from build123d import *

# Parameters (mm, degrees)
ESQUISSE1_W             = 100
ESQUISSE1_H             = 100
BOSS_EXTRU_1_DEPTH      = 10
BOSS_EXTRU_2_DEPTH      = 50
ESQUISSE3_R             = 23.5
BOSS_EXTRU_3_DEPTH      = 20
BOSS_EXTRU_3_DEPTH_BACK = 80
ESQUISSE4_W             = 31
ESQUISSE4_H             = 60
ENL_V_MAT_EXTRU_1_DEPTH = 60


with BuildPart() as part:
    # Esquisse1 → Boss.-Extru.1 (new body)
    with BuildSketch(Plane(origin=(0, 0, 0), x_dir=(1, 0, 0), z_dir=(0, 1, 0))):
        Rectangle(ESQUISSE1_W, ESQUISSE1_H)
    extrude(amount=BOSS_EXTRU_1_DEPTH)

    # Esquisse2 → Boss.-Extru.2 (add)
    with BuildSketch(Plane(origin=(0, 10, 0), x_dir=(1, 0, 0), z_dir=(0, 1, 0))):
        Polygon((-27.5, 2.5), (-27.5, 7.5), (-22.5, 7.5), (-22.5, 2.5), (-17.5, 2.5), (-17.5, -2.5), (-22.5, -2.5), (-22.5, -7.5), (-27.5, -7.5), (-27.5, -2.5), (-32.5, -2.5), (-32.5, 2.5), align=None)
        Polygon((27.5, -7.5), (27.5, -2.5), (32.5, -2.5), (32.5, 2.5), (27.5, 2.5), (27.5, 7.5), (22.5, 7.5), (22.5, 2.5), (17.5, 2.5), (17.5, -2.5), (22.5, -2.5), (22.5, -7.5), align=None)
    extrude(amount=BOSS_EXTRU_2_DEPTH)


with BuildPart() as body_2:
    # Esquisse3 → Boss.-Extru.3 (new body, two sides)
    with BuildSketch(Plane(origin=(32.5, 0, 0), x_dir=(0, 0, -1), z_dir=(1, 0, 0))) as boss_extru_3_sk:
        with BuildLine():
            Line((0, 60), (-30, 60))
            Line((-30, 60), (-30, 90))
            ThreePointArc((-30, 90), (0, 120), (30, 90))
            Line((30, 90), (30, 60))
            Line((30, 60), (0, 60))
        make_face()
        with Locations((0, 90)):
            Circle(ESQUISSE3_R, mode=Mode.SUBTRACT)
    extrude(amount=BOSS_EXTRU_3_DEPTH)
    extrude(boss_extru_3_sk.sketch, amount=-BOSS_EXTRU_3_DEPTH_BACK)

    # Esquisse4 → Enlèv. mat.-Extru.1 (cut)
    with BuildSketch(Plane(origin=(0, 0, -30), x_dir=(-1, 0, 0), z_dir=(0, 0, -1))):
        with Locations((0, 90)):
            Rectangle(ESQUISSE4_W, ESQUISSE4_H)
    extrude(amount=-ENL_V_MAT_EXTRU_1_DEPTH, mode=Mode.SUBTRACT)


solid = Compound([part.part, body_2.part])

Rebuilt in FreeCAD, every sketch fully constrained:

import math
import FreeCAD as App
import Part
import Sketcher

V = App.Vector

doc = App.newDocument("Part")
params = doc.addObject("Spreadsheet::Sheet", "Params")
for row, (alias, value) in enumerate([
    ("sketch1_width", "100 mm"),
    ("pad1_length", "10 mm"),
    ("sketch2_width", "5 mm"),
    ("pad2_length", "50 mm"),
    ("sketch3_diameter", "47 mm"),
    ("sketch3_radius", "30 mm"),
    ("sketch3_width", "30 mm"),
    ("pad3_length", "20 mm"),
    ("pad3_length2", "80 mm"),
    ("sketch4_width", "31 mm"),
    ("sketch4_height", "60 mm"),
    ("pocket1_length", "60 mm"),
], start=1):
    params.set(f"A{row}", alias)
    params.set(f"B{row}", "=" + value)
    params.setAlias(f"B{row}", alias)

body = doc.addObject("PartDesign::Body", "Body")

# Sketch on XZ plane
sketch1 = doc.addObject("Sketcher::SketchObject", "Sketch")
body.addObject(sketch1)
sketch1.AttachmentSupport = (doc.XZ_Plane, [""])
sketch1.MapMode = "FlatFace"
sketch1.addGeometry(Part.LineSegment(V(-50, -50, 0), V(-50, 50, 0)), False)
sketch1.addGeometry(Part.LineSegment(V(-50, 50, 0), V(50, 50, 0)), False)
sketch1.addGeometry(Part.LineSegment(V(50, 50, 0), V(50, -50, 0)), False)
sketch1.addGeometry(Part.LineSegment(V(50, -50, 0), V(-50, -50, 0)), False)
sketch1.addConstraint(Sketcher.Constraint("Coincident", 0, 2, 1, 1))
sketch1.addConstraint(Sketcher.Constraint("Coincident", 1, 2, 2, 1))
sketch1.addConstraint(Sketcher.Constraint("Coincident", 2, 2, 3, 1))
sketch1.addConstraint(Sketcher.Constraint("Coincident", 3, 2, 0, 1))
sketch1.addConstraint(Sketcher.Constraint("Vertical", 0))
sketch1.addConstraint(Sketcher.Constraint("Horizontal", 1))
sketch1.addConstraint(Sketcher.Constraint("Vertical", 2))
sketch1.addConstraint(Sketcher.Constraint("Horizontal", 3))
sketch1.addConstraint(Sketcher.Constraint("Symmetric", 0, 2, 2, 2, -1, 1))
sketch1.addConstraint(Sketcher.Constraint("Equal", 3, 0))
sketch1.addConstraint(Sketcher.Constraint("DistanceX", 1, 1, 1, 2, 100.0))
sketch1.setExpression("Constraints[10]", "Params.sketch1_width")
pad1 = doc.addObject("PartDesign::Pad", "Pad")
body.addObject(pad1)
pad1.Profile = sketch1
pad1.setExpression("Length", "Params.pad1_length")
pad1.Reversed = True

# Sketch on XZ plane
sketch2 = doc.addObject("Sketcher::SketchObject", "Sketch001")
body.addObject(sketch2)
sketch2.AttachmentSupport = (doc.XZ_Plane, [""])
sketch2.MapMode = "FlatFace"
sketch2.AttachmentOffset = App.Placement(V(0, 0, -10), App.Rotation())
sketch2.addGeometry(Part.LineSegment(V(-27.5, -7.5, 0), V(-27.5, -2.5, 0)), False)
sketch2.addGeometry(Part.LineSegment(V(-27.5, -2.5, 0), V(-32.5, -2.5, 0)), False)
sketch2.addGeometry(Part.LineSegment(V(-32.5, -2.5, 0), V(-32.5, 2.5, 0)), False)
sketch2.addGeometry(Part.LineSegment(V(-32.5, 2.5, 0), V(-27.5, 2.5, 0)), False)
sketch2.addGeometry(Part.LineSegment(V(-27.5, 2.5, 0), V(-27.5, 7.5, 0)), False)
sketch2.addGeometry(Part.LineSegment(V(-27.5, 7.5, 0), V(-22.5, 7.5, 0)), False)
sketch2.addGeometry(Part.LineSegment(V(-22.5, 7.5, 0), V(-22.5, 2.5, 0)), False)
sketch2.addGeometry(Part.LineSegment(V(-22.5, 2.5, 0), V(-17.5, 2.5, 0)), False)
sketch2.addGeometry(Part.LineSegment(V(-17.5, 2.5, 0), V(-17.5, -2.5, 0)), False)
sketch2.addGeometry(Part.LineSegment(V(-17.5, -2.5, 0), V(-22.5, -2.5, 0)), False)
sketch2.addGeometry(Part.LineSegment(V(-22.5, -2.5, 0), V(-22.5, -7.5, 0)), False)
sketch2.addGeometry(Part.LineSegment(V(-22.5, -7.5, 0), V(-27.5, -7.5, 0)), False)
sketch2.addGeometry(Part.LineSegment(V(27.5, 7.5, 0), V(27.5, 2.5, 0)), False)
sketch2.addGeometry(Part.LineSegment(V(27.5, 2.5, 0), V(32.5, 2.5, 0)), False)
sketch2.addGeometry(Part.LineSegment(V(32.5, 2.5, 0), V(32.5, -2.5, 0)), False)
sketch2.addGeometry(Part.LineSegment(V(32.5, -2.5, 0), V(27.5, -2.5, 0)), False)
sketch2.addGeometry(Part.LineSegment(V(27.5, -2.5, 0), V(27.5, -7.5, 0)), False)
sketch2.addGeometry(Part.LineSegment(V(27.5, -7.5, 0), V(22.5, -7.5, 0)), False)
sketch2.addGeometry(Part.LineSegment(V(22.5, -7.5, 0), V(22.5, -2.5, 0)), False)
sketch2.addGeometry(Part.LineSegment(V(22.5, -2.5, 0), V(17.5, -2.5, 0)), False)
sketch2.addGeometry(Part.LineSegment(V(17.5, -2.5, 0), V(17.5, 2.5, 0)), False)
sketch2.addGeometry(Part.LineSegment(V(17.5, 2.5, 0), V(22.5, 2.5, 0)), False)
sketch2.addGeometry(Part.LineSegment(V(22.5, 2.5, 0), V(22.5, 7.5, 0)), False)
sketch2.addGeometry(Part.LineSegment(V(22.5, 7.5, 0), V(27.5, 7.5, 0)), False)
sketch2.addConstraint(Sketcher.Constraint("Coincident", 0, 2, 1, 1))
sketch2.addConstraint(Sketcher.Constraint("Coincident", 1, 2, 2, 1))
sketch2.addConstraint(Sketcher.Constraint("Coincident", 2, 2, 3, 1))
sketch2.addConstraint(Sketcher.Constraint("Coincident", 3, 2, 4, 1))
sketch2.addConstraint(Sketcher.Constraint("Coincident", 4, 2, 5, 1))
sketch2.addConstraint(Sketcher.Constraint("Coincident", 5, 2, 6, 1))
sketch2.addConstraint(Sketcher.Constraint("Coincident", 6, 2, 7, 1))
sketch2.addConstraint(Sketcher.Constraint("Coincident", 7, 2, 8, 1))
sketch2.addConstraint(Sketcher.Constraint("Coincident", 8, 2, 9, 1))
sketch2.addConstraint(Sketcher.Constraint("Coincident", 9, 2, 10, 1))
sketch2.addConstraint(Sketcher.Constraint("Coincident", 10, 2, 11, 1))
sketch2.addConstraint(Sketcher.Constraint("Coincident", 11, 2, 0, 1))
sketch2.addConstraint(Sketcher.Constraint("Coincident", 12, 2, 13, 1))
sketch2.addConstraint(Sketcher.Constraint("Coincident", 13, 2, 14, 1))
sketch2.addConstraint(Sketcher.Constraint("Coincident", 14, 2, 15, 1))
sketch2.addConstraint(Sketcher.Constraint("Coincident", 15, 2, 16, 1))
sketch2.addConstraint(Sketcher.Constraint("Coincident", 16, 2, 17, 1))
sketch2.addConstraint(Sketcher.Constraint("Coincident", 17, 2, 18, 1))
sketch2.addConstraint(Sketcher.Constraint("Coincident", 18, 2, 19, 1))
sketch2.addConstraint(Sketcher.Constraint("Coincident", 19, 2, 20, 1))
sketch2.addConstraint(Sketcher.Constraint("Coincident", 20, 2, 21, 1))
sketch2.addConstraint(Sketcher.Constraint("Coincident", 21, 2, 22, 1))
sketch2.addConstraint(Sketcher.Constraint("Coincident", 22, 2, 23, 1))
sketch2.addConstraint(Sketcher.Constraint("Coincident", 23, 2, 12, 1))
sketch2.addConstraint(Sketcher.Constraint("Vertical", 0))
sketch2.addConstraint(Sketcher.Constraint("Horizontal", 1))
sketch2.addConstraint(Sketcher.Constraint("Vertical", 2))
sketch2.addConstraint(Sketcher.Constraint("Horizontal", 3))
sketch2.addConstraint(Sketcher.Constraint("Vertical", 4))
sketch2.addConstraint(Sketcher.Constraint("Horizontal", 5))
sketch2.addConstraint(Sketcher.Constraint("Vertical", 6))
sketch2.addConstraint(Sketcher.Constraint("Horizontal", 7))
sketch2.addConstraint(Sketcher.Constraint("Vertical", 8))
sketch2.addConstraint(Sketcher.Constraint("Horizontal", 9))
sketch2.addConstraint(Sketcher.Constraint("Vertical", 10))
sketch2.addConstraint(Sketcher.Constraint("Horizontal", 11))
sketch2.addConstraint(Sketcher.Constraint("Vertical", 12))
sketch2.addConstraint(Sketcher.Constraint("Horizontal", 13))
sketch2.addConstraint(Sketcher.Constraint("Vertical", 14))
sketch2.addConstraint(Sketcher.Constraint("Horizontal", 15))
sketch2.addConstraint(Sketcher.Constraint("Vertical", 16))
sketch2.addConstraint(Sketcher.Constraint("Horizontal", 17))
sketch2.addConstraint(Sketcher.Constraint("Vertical", 18))
sketch2.addConstraint(Sketcher.Constraint("Horizontal", 19))
sketch2.addConstraint(Sketcher.Constraint("Vertical", 20))
sketch2.addConstraint(Sketcher.Constraint("Horizontal", 21))
sketch2.addConstraint(Sketcher.Constraint("Vertical", 22))
sketch2.addConstraint(Sketcher.Constraint("Horizontal", 23))
sketch2.addConstraint(Sketcher.Constraint("Symmetric", 0, 2, 12, 2, -1, 1))
sketch2.addConstraint(Sketcher.Constraint("Symmetric", 2, 2, 14, 2, -1, 1))
sketch2.addConstraint(Sketcher.Constraint("Symmetric", 4, 2, 16, 2, -1, 1))
sketch2.addConstraint(Sketcher.Constraint("Symmetric", 6, 2, 18, 2, -1, 1))
sketch2.addConstraint(Sketcher.Constraint("Symmetric", 8, 2, 20, 2, -1, 1))
sketch2.addConstraint(Sketcher.Constraint("Symmetric", 10, 2, 22, 2, -1, 1))
sketch2.addConstraint(Sketcher.Constraint("Symmetric", 3, 2, 12, 2, -2))
sketch2.addConstraint(Sketcher.Constraint("Symmetric", 10, 2, 17, 2, -2))
sketch2.addConstraint(Sketcher.Constraint("Horizontal", 3, 2, 6, 2))
sketch2.addConstraint(Sketcher.Constraint("Horizontal", 1, 2, 8, 2))
sketch2.addConstraint(Sketcher.Constraint("Equal", 3, 5))
sketch2.addConstraint(Sketcher.Constraint("Equal", 5, 7))
sketch2.addConstraint(Sketcher.Constraint("Equal", 23, 0))
sketch2.addConstraint(Sketcher.Constraint("Equal", 0, 2))
sketch2.addConstraint(Sketcher.Constraint("DistanceX", 1, 2, 1, 1, 5.0))
sketch2.addConstraint(Sketcher.Constraint("DistanceX", 7, 2, 12, 2, 45.0))
sketch2.setExpression("Constraints[62]", "Params.sketch2_width")
pad2 = doc.addObject("PartDesign::Pad", "Pad001")
body.addObject(pad2)
pad2.Profile = sketch2
pad2.setExpression("Length", "Params.pad2_length")
pad2.Reversed = True
body2 = doc.addObject("PartDesign::Body", "Body001")
body2.AllowCompound = True

# Sketch on YZ plane
sketch3 = doc.addObject("Sketcher::SketchObject", "Sketch002")
body2.addObject(sketch3)
sketch3.AttachmentSupport = (doc.getObject("YZ_Plane001"), [""])
sketch3.MapMode = "FlatFace"
sketch3.AttachmentOffset = App.Placement(V(0, 0, 32.5), App.Rotation())
sketch3.addGeometry(Part.LineSegment(V(90, 30, 0), V(60, 30, 0)), False)
sketch3.addGeometry(Part.LineSegment(V(60, 30, 0), V(60, -30, 0)), False)
sketch3.addGeometry(Part.LineSegment(V(60, -30, 0), V(90, -30, 0)), False)
sketch3.addGeometry(Part.ArcOfCircle(Part.Circle(V(90, 0, 0), V(0, 0, 1), 30), math.radians(-90), math.radians(90)), False)
sketch3.addGeometry(Part.Circle(V(90, 0, 0), V(0, 0, 1), 23.5), False)
sketch3.addConstraint(Sketcher.Constraint("Coincident", 0, 2, 1, 1))
sketch3.addConstraint(Sketcher.Constraint("Coincident", 1, 2, 2, 1))
sketch3.addConstraint(Sketcher.Constraint("Tangent", 2, 2, 3, 1))
sketch3.addConstraint(Sketcher.Constraint("Tangent", 3, 2, 0, 1))
sketch3.addConstraint(Sketcher.Constraint("Horizontal", 0))
sketch3.addConstraint(Sketcher.Constraint("Vertical", 1))
sketch3.addConstraint(Sketcher.Constraint("Horizontal", 2))
sketch3.addConstraint(Sketcher.Constraint("Coincident", 4, 3, 3, 3))
sketch3.addConstraint(Sketcher.Constraint("PointOnObject", 3, 3, -1))
sketch3.addConstraint(Sketcher.Constraint("Diameter", 4, 47.0))
sketch3.addConstraint(Sketcher.Constraint("Radius", 3, 30.0))
sketch3.addConstraint(Sketcher.Constraint("DistanceX", 0, 2, 0, 1, 30.0))
sketch3.addConstraint(Sketcher.Constraint("DistanceX", -1, 1, 3, 3, 90.0))
sketch3.setExpression("Constraints[9]", "Params.sketch3_diameter")
sketch3.setExpression("Constraints[10]", "Params.sketch3_radius")
sketch3.setExpression("Constraints[11]", "Params.sketch3_width")
pad3 = doc.addObject("PartDesign::Pad", "Pad002")
body2.addObject(pad3)
pad3.Profile = sketch3
pad3.Type = "TwoLengths"
pad3.setExpression("Length", "Params.pad3_length")
pad3.setExpression("Length2", "Params.pad3_length2")

# Sketch on XY plane
sketch4 = doc.addObject("Sketcher::SketchObject", "Sketch003")
body2.addObject(sketch4)
sketch4.AttachmentSupport = (doc.getObject("XY_Plane001"), [""])
sketch4.MapMode = "FlatFace"
sketch4.AttachmentOffset = App.Placement(V(0, 0, -30), App.Rotation())
sketch4.addGeometry(Part.LineSegment(V(15.5, 120, 0), V(15.5, 60, 0)), False)
sketch4.addGeometry(Part.LineSegment(V(15.5, 60, 0), V(-15.5, 60, 0)), False)
sketch4.addGeometry(Part.LineSegment(V(-15.5, 60, 0), V(-15.5, 120, 0)), False)
sketch4.addGeometry(Part.LineSegment(V(-15.5, 120, 0), V(15.5, 120, 0)), False)
sketch4.addConstraint(Sketcher.Constraint("Coincident", 0, 2, 1, 1))
sketch4.addConstraint(Sketcher.Constraint("Coincident", 1, 2, 2, 1))
sketch4.addConstraint(Sketcher.Constraint("Coincident", 2, 2, 3, 1))
sketch4.addConstraint(Sketcher.Constraint("Coincident", 3, 2, 0, 1))
sketch4.addConstraint(Sketcher.Constraint("Vertical", 0))
sketch4.addConstraint(Sketcher.Constraint("Horizontal", 1))
sketch4.addConstraint(Sketcher.Constraint("Vertical", 2))
sketch4.addConstraint(Sketcher.Constraint("Horizontal", 3))
sketch4.addConstraint(Sketcher.Constraint("DistanceX", 1, 2, 1, 1, 31.0))
sketch4.addConstraint(Sketcher.Constraint("DistanceY", 0, 2, 0, 1, 60.0))
sketch4.addConstraint(Sketcher.Constraint("DistanceY", -1, 1, 0, 2, 60.0))
sketch4.addConstraint(Sketcher.Constraint("DistanceX", -1, 1, 0, 2, 15.5))
sketch4.setExpression("Constraints[8]", "Params.sketch4_width")
sketch4.setExpression("Constraints[9]", "Params.sketch4_height")
pocket1 = doc.addObject("PartDesign::Pocket", "Pocket")
body2.addObject(pocket1)
pocket1.Profile = sketch4
pocket1.setExpression("Length", "Params.pocket1_length")
pocket1.Reversed = True

doc.recompute()
